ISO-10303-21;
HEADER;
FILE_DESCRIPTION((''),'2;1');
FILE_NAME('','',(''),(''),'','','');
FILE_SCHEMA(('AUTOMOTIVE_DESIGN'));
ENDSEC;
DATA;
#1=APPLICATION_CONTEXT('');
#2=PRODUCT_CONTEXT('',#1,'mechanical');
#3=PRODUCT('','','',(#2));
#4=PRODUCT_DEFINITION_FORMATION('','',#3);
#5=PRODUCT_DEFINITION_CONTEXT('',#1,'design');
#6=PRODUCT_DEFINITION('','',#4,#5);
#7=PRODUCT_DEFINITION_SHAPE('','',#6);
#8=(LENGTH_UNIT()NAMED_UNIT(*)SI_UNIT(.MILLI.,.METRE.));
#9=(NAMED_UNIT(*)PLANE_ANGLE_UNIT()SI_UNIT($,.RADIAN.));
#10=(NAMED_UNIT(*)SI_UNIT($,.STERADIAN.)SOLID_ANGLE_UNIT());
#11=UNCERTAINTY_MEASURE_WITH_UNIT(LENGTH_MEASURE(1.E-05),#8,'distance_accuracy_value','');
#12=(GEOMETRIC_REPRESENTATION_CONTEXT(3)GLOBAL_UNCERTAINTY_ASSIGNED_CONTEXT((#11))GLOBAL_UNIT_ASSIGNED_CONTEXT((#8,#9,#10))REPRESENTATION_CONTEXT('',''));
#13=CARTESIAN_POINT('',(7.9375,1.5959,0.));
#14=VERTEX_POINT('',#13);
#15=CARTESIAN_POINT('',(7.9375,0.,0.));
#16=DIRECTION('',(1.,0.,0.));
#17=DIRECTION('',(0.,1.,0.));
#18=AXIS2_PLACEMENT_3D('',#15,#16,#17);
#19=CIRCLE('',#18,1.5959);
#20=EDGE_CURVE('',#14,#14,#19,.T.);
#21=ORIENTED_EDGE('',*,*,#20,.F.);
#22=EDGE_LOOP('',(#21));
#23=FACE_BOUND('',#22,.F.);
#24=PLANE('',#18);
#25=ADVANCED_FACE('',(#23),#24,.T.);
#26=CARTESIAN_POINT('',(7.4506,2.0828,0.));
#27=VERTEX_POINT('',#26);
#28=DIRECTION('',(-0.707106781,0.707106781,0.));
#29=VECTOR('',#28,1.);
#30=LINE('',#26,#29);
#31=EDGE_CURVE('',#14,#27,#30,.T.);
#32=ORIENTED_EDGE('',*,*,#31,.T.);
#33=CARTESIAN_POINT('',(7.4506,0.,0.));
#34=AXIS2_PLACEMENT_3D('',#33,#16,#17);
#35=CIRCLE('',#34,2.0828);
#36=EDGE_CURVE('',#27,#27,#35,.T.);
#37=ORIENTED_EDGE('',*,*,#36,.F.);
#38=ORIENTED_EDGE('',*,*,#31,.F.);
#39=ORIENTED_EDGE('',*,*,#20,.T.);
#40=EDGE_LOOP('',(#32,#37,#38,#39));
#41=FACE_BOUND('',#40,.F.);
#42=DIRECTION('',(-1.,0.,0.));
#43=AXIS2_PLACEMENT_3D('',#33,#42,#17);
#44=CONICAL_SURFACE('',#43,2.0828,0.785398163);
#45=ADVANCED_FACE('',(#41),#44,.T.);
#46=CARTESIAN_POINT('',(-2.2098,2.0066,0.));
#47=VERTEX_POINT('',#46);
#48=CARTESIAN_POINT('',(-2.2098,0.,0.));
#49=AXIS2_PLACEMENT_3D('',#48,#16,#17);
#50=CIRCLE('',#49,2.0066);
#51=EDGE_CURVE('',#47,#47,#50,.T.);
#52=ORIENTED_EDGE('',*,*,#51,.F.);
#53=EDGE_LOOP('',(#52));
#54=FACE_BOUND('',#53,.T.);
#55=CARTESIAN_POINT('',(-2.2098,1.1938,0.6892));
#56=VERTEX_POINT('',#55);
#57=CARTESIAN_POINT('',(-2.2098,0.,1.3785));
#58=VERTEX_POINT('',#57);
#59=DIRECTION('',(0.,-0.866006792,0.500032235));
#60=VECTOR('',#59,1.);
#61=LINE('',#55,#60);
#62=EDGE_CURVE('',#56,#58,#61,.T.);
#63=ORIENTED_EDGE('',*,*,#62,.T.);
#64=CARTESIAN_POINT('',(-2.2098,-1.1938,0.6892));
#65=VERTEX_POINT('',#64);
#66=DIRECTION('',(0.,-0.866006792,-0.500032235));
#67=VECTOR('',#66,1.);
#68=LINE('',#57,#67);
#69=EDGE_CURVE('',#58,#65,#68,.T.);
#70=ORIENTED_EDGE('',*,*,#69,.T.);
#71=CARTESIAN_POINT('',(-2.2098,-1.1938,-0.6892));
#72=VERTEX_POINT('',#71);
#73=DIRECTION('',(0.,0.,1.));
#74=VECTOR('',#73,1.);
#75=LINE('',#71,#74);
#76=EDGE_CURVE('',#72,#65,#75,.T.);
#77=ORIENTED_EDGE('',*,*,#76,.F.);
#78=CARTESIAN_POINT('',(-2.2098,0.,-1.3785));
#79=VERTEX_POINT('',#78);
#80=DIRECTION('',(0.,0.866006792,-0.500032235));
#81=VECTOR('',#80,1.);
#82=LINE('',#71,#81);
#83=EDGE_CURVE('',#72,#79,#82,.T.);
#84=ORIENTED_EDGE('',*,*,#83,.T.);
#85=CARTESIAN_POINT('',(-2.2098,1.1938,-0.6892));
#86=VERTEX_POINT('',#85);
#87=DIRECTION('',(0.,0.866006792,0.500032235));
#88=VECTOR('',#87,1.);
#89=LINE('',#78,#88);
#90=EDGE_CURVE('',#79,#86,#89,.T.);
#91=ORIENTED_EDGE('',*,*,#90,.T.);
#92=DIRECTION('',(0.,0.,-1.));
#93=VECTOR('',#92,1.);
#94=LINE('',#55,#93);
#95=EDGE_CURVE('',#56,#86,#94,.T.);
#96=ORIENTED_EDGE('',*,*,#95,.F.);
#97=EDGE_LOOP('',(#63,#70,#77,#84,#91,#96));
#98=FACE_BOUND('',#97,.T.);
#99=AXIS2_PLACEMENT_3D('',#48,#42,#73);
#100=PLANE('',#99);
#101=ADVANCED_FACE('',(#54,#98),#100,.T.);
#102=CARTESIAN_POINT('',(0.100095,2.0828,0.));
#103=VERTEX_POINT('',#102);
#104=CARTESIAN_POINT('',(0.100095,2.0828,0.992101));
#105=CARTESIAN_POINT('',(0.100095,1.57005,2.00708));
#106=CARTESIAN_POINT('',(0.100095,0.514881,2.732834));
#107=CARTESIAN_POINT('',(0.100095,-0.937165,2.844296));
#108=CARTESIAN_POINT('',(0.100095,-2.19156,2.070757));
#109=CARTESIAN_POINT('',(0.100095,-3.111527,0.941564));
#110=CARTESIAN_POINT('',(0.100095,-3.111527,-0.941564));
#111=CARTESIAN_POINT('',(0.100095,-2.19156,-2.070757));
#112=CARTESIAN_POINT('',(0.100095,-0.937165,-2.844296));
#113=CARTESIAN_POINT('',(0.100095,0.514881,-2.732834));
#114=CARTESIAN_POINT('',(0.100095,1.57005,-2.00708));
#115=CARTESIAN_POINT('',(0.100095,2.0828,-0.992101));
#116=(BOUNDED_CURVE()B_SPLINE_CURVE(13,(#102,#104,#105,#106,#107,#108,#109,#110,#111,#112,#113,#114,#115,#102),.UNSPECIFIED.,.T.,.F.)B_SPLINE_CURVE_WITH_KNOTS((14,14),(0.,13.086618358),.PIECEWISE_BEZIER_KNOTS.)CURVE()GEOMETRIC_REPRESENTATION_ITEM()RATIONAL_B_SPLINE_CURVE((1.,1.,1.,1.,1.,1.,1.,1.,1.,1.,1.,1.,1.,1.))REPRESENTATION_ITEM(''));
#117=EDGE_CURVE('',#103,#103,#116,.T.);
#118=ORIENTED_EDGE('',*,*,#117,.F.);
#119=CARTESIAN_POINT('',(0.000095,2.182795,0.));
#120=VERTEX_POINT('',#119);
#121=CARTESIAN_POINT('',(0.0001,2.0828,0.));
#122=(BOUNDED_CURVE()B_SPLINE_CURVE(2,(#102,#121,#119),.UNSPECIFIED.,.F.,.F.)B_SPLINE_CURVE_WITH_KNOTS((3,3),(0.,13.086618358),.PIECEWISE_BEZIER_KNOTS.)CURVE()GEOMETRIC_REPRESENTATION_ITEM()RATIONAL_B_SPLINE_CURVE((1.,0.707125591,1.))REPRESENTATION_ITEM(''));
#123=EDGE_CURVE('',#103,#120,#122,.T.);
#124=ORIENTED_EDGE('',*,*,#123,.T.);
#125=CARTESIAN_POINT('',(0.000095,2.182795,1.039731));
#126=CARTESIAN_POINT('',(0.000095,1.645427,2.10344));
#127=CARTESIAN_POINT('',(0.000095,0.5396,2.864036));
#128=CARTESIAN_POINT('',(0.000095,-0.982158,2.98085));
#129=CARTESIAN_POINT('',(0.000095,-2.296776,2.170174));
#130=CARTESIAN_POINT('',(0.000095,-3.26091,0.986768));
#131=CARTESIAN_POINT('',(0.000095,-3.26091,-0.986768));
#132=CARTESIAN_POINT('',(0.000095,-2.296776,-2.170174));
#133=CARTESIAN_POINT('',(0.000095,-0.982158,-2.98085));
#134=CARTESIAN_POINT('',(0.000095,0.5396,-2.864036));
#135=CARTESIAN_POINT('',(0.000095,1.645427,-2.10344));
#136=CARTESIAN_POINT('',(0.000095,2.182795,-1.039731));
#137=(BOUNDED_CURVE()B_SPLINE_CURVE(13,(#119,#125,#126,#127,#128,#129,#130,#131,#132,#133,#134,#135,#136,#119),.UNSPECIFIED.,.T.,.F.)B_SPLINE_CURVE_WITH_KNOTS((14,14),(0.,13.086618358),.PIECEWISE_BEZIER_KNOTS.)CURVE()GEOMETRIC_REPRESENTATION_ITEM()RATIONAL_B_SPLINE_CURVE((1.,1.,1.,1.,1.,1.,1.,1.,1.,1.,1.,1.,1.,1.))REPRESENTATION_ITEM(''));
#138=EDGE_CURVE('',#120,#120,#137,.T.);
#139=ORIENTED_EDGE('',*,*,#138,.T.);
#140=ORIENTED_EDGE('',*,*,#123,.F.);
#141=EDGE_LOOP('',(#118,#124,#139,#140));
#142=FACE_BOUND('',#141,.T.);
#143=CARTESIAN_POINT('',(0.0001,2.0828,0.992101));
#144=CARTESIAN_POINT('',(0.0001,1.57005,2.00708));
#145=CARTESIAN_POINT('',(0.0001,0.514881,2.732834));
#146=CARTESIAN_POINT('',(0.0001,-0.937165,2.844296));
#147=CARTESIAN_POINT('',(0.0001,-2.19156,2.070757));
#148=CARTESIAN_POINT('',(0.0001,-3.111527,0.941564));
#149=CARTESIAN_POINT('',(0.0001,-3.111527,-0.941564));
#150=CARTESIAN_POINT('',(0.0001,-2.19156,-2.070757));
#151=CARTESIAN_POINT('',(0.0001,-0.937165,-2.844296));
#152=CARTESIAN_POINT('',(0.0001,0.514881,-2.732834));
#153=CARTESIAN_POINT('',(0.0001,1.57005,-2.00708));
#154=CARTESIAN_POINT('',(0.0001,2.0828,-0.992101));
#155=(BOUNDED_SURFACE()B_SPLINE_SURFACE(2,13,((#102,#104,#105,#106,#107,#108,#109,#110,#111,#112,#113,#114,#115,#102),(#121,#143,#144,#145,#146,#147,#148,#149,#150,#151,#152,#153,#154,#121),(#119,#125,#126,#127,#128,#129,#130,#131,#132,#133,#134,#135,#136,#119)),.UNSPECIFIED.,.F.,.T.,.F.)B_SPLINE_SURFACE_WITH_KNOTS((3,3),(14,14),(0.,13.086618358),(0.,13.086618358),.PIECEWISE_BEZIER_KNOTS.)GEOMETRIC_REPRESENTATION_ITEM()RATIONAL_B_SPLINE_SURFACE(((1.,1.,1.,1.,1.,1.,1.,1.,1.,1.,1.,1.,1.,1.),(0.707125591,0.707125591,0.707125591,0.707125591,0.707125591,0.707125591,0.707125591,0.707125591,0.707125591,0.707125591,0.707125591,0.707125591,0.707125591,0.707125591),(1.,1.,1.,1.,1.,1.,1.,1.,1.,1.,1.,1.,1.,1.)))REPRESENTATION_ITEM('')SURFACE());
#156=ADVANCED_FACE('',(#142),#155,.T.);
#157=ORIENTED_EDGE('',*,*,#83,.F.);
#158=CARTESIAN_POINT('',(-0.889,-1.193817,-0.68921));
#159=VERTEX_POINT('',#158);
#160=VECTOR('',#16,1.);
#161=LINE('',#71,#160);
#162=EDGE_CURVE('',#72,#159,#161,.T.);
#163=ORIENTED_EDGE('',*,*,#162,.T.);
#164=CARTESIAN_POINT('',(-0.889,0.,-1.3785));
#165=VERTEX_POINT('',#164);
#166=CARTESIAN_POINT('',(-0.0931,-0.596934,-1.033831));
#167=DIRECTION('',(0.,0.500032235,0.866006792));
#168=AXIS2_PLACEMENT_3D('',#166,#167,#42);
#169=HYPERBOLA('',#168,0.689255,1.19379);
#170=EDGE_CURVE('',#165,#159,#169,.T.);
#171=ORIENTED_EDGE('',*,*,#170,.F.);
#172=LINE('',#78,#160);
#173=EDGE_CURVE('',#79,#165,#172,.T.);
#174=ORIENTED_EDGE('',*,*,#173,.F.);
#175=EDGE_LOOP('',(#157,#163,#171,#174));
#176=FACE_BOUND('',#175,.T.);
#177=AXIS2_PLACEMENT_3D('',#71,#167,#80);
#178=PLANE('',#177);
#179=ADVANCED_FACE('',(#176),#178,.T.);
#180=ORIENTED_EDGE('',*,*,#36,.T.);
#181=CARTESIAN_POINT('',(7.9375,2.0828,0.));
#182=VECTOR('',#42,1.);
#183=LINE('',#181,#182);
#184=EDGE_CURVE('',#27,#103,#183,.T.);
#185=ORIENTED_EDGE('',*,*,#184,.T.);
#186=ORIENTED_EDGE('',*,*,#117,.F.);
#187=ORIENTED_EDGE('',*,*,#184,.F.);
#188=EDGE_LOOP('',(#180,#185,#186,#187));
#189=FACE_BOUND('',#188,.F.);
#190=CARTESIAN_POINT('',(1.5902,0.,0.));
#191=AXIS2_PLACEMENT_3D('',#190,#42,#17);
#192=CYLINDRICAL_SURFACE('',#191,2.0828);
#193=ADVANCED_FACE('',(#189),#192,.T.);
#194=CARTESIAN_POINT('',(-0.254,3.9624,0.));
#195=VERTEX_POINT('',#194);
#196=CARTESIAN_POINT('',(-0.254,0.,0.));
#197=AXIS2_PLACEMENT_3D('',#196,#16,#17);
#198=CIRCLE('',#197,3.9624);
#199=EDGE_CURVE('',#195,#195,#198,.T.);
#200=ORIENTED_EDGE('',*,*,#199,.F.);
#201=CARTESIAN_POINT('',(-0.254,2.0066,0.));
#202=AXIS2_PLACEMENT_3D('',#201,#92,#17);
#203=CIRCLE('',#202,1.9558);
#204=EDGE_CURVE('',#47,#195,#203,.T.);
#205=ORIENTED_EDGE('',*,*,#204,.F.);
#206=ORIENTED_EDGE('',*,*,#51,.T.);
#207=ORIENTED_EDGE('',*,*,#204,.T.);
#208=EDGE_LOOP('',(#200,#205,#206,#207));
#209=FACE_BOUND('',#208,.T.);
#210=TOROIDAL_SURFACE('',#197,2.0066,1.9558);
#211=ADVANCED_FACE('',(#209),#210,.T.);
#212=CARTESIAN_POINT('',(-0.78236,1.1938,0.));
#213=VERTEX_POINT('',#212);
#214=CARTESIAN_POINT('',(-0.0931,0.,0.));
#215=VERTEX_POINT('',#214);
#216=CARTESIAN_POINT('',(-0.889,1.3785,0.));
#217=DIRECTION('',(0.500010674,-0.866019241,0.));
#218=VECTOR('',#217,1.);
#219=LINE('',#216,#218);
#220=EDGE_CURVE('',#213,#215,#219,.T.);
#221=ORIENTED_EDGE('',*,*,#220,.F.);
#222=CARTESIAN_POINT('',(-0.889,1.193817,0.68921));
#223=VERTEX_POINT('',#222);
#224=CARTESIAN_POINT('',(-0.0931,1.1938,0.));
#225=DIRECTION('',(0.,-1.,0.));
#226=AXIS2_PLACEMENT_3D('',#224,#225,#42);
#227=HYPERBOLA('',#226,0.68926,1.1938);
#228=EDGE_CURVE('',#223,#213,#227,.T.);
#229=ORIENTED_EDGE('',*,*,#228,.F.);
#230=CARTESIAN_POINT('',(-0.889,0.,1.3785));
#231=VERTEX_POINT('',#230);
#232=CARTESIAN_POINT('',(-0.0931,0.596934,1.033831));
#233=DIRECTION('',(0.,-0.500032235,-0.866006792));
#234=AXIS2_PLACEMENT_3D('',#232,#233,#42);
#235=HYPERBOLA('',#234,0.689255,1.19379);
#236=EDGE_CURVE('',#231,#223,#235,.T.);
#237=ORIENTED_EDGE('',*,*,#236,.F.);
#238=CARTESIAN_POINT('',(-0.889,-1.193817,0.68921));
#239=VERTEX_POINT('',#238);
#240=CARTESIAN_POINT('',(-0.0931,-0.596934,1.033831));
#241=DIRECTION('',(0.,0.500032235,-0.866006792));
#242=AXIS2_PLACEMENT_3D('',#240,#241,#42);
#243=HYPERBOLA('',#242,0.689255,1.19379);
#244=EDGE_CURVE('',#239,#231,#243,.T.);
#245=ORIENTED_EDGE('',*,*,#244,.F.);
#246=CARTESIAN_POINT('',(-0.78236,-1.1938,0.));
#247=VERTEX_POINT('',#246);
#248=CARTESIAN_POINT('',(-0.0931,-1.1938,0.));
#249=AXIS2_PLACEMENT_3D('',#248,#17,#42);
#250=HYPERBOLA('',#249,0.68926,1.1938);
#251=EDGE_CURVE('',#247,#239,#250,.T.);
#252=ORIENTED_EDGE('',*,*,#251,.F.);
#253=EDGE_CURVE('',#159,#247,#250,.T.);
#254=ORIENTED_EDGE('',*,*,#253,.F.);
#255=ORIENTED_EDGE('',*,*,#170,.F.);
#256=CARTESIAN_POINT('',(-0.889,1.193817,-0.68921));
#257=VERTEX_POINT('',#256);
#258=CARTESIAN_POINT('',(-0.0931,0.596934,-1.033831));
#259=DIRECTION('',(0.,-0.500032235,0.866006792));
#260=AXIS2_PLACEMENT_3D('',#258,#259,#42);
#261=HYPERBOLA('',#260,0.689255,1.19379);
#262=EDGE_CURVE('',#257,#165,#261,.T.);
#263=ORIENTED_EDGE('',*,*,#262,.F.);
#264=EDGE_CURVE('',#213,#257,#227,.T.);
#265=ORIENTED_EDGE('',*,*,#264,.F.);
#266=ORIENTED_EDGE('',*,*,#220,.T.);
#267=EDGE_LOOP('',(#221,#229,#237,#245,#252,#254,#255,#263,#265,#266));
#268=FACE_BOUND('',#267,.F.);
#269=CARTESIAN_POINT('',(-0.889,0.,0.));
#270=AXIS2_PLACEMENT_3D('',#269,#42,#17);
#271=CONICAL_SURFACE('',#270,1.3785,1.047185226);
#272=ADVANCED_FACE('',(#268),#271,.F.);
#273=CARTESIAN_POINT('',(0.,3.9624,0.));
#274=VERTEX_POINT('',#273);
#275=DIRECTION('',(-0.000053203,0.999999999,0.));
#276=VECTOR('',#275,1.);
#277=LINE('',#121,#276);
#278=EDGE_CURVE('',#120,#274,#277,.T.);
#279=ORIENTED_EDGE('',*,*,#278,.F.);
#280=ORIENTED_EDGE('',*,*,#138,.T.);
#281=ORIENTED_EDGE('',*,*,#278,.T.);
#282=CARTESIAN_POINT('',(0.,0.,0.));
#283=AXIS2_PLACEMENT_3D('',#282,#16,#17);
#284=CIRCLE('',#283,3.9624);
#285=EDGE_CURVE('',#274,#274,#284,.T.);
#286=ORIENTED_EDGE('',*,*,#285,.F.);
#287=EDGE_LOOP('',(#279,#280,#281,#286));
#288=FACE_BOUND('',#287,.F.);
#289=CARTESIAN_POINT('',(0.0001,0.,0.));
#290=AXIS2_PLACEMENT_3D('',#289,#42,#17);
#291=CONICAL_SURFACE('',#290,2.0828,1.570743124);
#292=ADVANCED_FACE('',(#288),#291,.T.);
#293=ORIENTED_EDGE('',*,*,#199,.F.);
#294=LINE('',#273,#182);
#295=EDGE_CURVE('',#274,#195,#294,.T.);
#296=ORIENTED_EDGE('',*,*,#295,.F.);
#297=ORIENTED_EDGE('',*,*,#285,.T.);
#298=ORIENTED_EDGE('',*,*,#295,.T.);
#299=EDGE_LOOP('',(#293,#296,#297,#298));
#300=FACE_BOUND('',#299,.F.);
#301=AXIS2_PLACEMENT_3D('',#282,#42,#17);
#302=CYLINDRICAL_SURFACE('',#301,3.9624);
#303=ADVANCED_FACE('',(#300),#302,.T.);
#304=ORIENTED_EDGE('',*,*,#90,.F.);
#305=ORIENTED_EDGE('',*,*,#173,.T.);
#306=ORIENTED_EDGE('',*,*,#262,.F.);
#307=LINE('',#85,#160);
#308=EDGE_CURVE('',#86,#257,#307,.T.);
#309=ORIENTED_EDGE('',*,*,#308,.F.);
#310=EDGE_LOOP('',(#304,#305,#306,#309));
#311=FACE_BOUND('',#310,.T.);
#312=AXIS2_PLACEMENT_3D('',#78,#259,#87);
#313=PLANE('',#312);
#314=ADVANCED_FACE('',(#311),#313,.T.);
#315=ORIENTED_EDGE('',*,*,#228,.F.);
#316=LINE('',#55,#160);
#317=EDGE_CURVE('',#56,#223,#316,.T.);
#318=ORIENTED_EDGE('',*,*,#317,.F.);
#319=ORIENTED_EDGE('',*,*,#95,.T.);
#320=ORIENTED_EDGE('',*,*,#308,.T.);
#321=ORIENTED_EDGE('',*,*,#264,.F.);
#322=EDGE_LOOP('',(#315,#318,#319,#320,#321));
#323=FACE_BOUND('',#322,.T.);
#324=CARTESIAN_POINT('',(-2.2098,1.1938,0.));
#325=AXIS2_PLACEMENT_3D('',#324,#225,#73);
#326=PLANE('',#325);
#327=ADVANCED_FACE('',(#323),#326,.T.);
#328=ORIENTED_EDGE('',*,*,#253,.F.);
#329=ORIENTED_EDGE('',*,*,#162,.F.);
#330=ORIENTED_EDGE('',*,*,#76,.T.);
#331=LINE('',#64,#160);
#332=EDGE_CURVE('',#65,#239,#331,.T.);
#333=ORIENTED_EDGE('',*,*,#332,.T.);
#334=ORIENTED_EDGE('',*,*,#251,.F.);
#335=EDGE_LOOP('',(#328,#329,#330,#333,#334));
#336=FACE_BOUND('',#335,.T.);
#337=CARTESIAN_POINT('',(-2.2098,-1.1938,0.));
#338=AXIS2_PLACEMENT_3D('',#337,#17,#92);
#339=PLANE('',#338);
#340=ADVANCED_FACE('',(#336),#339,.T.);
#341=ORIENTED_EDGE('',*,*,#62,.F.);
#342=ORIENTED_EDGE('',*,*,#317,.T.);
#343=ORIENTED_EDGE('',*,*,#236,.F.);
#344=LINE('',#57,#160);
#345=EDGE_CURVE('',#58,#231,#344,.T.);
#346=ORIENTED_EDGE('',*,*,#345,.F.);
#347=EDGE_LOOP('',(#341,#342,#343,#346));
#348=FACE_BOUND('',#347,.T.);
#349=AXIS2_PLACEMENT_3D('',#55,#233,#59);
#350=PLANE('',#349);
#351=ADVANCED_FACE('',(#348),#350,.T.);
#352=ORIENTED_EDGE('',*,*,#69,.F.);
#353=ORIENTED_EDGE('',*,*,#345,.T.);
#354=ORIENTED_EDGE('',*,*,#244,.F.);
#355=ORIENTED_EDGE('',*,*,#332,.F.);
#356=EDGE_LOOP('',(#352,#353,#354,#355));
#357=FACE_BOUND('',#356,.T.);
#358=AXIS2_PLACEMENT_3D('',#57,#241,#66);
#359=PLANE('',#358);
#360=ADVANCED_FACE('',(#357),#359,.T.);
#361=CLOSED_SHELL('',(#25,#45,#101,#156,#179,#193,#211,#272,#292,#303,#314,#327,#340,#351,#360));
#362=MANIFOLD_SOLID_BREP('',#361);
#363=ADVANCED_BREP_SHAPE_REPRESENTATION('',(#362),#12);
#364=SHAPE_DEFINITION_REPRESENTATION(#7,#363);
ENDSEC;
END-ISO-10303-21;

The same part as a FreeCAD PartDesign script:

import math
import FreeCAD as App
import Part
import Sketcher

V = App.Vector
Q = App.Units.Quantity


def edges_at(feature, points):
    """Names of the edges that pass closest to the given points."""
    edges = feature.Shape.Edges
    near = lambda p: min(range(len(edges)), key=lambda i: edges[i].distToShape(Part.Vertex(*p))[0])
    return sorted({f"Edge{near(p) + 1}" for p in points})

doc = App.newDocument("Part")
body = doc.addObject("PartDesign::Body", "Body")

sketch1 = body.newObject("Sketcher::SketchObject", "Sketch")
sketch1.AttachmentSupport = (doc.getObject("XY_Plane"), [""])
sketch1.MapMode = "FlatFace"
sketch1.addGeometry([
    Part.LineSegment(V(-0.9, 1.4, 0), V(-0.1, 0, 0)),
    Part.LineSegment(V(-0.1, 0, 0), V(7.9, 0, 0)),
    Part.LineSegment(V(7.9, 0, 0), V(7.9, 2.1, 0)),
    Part.LineSegment(V(7.9, 2.1, 0), V(0, 2.1, 0)),
    Part.LineSegment(V(0, 2.1, 0), V(0, 4, 0)),
    Part.LineSegment(V(0, 4, 0), V(-2.2, 4, 0)),
    Part.LineSegment(V(-2.2, 4, 0), V(-2.2, 1.4, 0)),
    Part.LineSegment(V(-2.2, 1.4, 0), V(-0.9, 1.4, 0)),
], False)
sketch1.addConstraint([
    Sketcher.Constraint("Coincident", 0, 2, 1, 1),
    Sketcher.Constraint("Coincident", 1, 2, 2, 1),
    Sketcher.Constraint("Coincident", 2, 2, 3, 1),
    Sketcher.Constraint("Coincident", 3, 2, 4, 1),
    Sketcher.Constraint("Coincident", 4, 2, 5, 1),
    Sketcher.Constraint("Coincident", 5, 2, 6, 1),
    Sketcher.Constraint("Coincident", 6, 2, 7, 1),
    Sketcher.Constraint("Coincident", 7, 2, 0, 1),
    Sketcher.Constraint("Horizontal", 1),
    Sketcher.Constraint("Vertical", 2),
    Sketcher.Constraint("Horizontal", 3),
    Sketcher.Constraint("Vertical", 4),
    Sketcher.Constraint("Horizontal", 5),
    Sketcher.Constraint("Vertical", 6),
    Sketcher.Constraint("Horizontal", 7),
    Sketcher.Constraint("PointOnObject", 0, 2, -1),
    Sketcher.Constraint("PointOnObject", 3, 2, -2),
    Sketcher.Constraint("DistanceX", 3, 2, 3, 1, Q("0.3125 in")),
    Sketcher.Constraint("DistanceX", 5, 2, 5, 1, Q("0.087 in")),
    Sketcher.Constraint("DistanceX", 7, 1, 7, 2, Q("0.052 in")),
    Sketcher.Constraint("Angle", 0, Q("-59.9993 deg")),
    Sketcher.Constraint("DistanceY", 2, 1, 2, 2, Q("0.082 in")),
    Sketcher.Constraint("DistanceY", 4, 1, 4, 2, Q("0.074 in")),
    Sketcher.Constraint("DistanceX", 1, 1, 1, 2, Q("8.0306 mm")),
])
revolution = body.newObject("PartDesign::Revolution", "Revolution")
revolution.Profile = sketch1
revolution.ReferenceAxis = (sketch1, ["H_Axis"])
revolution.Angle = 360

sketch2 = body.newObject("Sketcher::SketchObject", "Sketch001")
sketch2.AttachmentSupport = (doc.getObject("YZ_Plane"), [""])
sketch2.MapMode = "FlatFace"
sketch2.AttachmentOffset = App.Placement(V(0, 0, -0.087 * 25.4), App.Rotation())
sketch2.addGeometry([
    Part.LineSegment(V(1.2, 0.7, 0), V(0, 1.4, 0)),
    Part.ArcOfCircle(Part.Circle(V(0, 0, 0), V(0, 0, 1), 1.4), math.radians(30), math.radians(90)),
    Part.ArcOfCircle(Part.Circle(V(0, 0, 0), V(0, 0, 1), 1.4), math.radians(90), math.radians(150)),
    Part.LineSegment(V(0, 1.4, 0), V(-1.2, 0.7, 0)),
    Part.ArcOfCircle(Part.Circle(V(0, 0, 0), V(0, 0, 1), 1.4), math.radians(-30), math.radians(30)),
    Part.LineSegment(V(1.2, 0.7, 0), V(1.2, -0.7, 0)),
    Part.LineSegment(V(-1.2, 0.7, 0), V(-1.2, -0.7, 0)),
    Part.ArcOfCircle(Part.Circle(V(0, 0, 0), V(0, 0, 1), 1.4), math.radians(150), math.radians(210)),
    Part.LineSegment(V(-1.2, -0.7, 0), V(0, -1.4, 0)),
    Part.ArcOfCircle(Part.Circle(V(0, 0, 0), V(0, 0, 1), 1.4), math.radians(-150), math.radians(-90)),
    Part.ArcOfCircle(Part.Circle(V(0, 0, 0), V(0, 0, 1), 1.4), math.radians(-90), math.radians(-30)),
    Part.LineSegment(V(0, -1.4, 0), V(1.2, -0.7, 0)),
], False)
sketch2.addConstraint([
    Sketcher.Constraint("Coincident", 0, 1, 1, 1),
    Sketcher.Constraint("Coincident", 1, 2, 0, 2),
    Sketcher.Constraint("Coincident", 2, 1, 3, 1),
    Sketcher.Constraint("Coincident", 3, 2, 2, 2),
    Sketcher.Constraint("Coincident", 4, 1, 5, 2),
    Sketcher.Constraint("Coincident", 5, 1, 4, 2),
    Sketcher.Constraint("Coincident", 6, 1, 7, 1),
    Sketcher.Constraint("Coincident", 7, 2, 6, 2),
    Sketcher.Constraint("Coincident", 8, 1, 9, 1),
    Sketcher.Constraint("Coincident", 9, 2, 8, 2),
    Sketcher.Constraint("Coincident", 10, 1, 11, 1),
    Sketcher.Constraint("Coincident", 11, 2, 10, 2),
    Sketcher.Constraint("Vertical", 5),
    Sketcher.Constraint("Vertical", 6),
    Sketcher.Constraint("Coincident", 1, 3, -1, 1),
    Sketcher.Constraint("Coincident", 2, 3, -1, 1),
    Sketcher.Constraint("Coincident", 4, 3, -1, 1),
    Sketcher.Constraint("Coincident", 7, 3, -1, 1),
    Sketcher.Constraint("Coincident", 9, 3, -1, 1),
    Sketcher.Constraint("Coincident", 10, 3, -1, 1),
    Sketcher.Constraint("Coincident", 2, 1, 1, 2),
    Sketcher.Constraint("Coincident", 5, 1, 0, 1),
    Sketcher.Constraint("Coincident", 6, 1, 3, 2),
    Sketcher.Constraint("Coincident", 8, 1, 7, 2),
    Sketcher.Constraint("Coincident", 10, 1, 9, 2),
    Sketcher.Constraint("PointOnObject", 1, 2, -2),
    Sketcher.Constraint("PointOnObject", 9, 2, -2),
    Sketcher.Constraint("Parallel", 0, 8),
    Sketcher.Constraint("Parallel", 3, 11),
    Sketcher.Constraint("Radius", 1, Q("1.3785 mm")),
    Sketcher.Constraint("DistanceX", -1, 1, 0, 1, Q("0.047 in")),
])
pad1 = body.newObject("PartDesign::Pad", "Pad")
pad1.Profile = sketch2
pad1.Type = "UpToFirst"
doc.recompute()

fillet = body.newObject("PartDesign::Fillet", "Fillet")
fillet.Base = (pad1, edges_at(pad1, [(-2.21, -3.962, 0)]))
fillet.Radius = Q("0.077 in")
doc.recompute()

chamfer = body.newObject("PartDesign::Chamfer", "Chamfer")
chamfer.Base = (fillet, edges_at(fillet, [(7.938, -2.083, 0)]))
chamfer.ChamferType = "Two distances"
chamfer.Size = 0.4869
chamfer.Size2 = 0.4869
doc.recompute()

fillet2 = body.newObject("PartDesign::Fillet", "Fillet001")
fillet2.Base = (chamfer, edges_at(chamfer, [(0, -2.083, 0)]))
fillet2.Radius = 0.1

doc.recompute()
